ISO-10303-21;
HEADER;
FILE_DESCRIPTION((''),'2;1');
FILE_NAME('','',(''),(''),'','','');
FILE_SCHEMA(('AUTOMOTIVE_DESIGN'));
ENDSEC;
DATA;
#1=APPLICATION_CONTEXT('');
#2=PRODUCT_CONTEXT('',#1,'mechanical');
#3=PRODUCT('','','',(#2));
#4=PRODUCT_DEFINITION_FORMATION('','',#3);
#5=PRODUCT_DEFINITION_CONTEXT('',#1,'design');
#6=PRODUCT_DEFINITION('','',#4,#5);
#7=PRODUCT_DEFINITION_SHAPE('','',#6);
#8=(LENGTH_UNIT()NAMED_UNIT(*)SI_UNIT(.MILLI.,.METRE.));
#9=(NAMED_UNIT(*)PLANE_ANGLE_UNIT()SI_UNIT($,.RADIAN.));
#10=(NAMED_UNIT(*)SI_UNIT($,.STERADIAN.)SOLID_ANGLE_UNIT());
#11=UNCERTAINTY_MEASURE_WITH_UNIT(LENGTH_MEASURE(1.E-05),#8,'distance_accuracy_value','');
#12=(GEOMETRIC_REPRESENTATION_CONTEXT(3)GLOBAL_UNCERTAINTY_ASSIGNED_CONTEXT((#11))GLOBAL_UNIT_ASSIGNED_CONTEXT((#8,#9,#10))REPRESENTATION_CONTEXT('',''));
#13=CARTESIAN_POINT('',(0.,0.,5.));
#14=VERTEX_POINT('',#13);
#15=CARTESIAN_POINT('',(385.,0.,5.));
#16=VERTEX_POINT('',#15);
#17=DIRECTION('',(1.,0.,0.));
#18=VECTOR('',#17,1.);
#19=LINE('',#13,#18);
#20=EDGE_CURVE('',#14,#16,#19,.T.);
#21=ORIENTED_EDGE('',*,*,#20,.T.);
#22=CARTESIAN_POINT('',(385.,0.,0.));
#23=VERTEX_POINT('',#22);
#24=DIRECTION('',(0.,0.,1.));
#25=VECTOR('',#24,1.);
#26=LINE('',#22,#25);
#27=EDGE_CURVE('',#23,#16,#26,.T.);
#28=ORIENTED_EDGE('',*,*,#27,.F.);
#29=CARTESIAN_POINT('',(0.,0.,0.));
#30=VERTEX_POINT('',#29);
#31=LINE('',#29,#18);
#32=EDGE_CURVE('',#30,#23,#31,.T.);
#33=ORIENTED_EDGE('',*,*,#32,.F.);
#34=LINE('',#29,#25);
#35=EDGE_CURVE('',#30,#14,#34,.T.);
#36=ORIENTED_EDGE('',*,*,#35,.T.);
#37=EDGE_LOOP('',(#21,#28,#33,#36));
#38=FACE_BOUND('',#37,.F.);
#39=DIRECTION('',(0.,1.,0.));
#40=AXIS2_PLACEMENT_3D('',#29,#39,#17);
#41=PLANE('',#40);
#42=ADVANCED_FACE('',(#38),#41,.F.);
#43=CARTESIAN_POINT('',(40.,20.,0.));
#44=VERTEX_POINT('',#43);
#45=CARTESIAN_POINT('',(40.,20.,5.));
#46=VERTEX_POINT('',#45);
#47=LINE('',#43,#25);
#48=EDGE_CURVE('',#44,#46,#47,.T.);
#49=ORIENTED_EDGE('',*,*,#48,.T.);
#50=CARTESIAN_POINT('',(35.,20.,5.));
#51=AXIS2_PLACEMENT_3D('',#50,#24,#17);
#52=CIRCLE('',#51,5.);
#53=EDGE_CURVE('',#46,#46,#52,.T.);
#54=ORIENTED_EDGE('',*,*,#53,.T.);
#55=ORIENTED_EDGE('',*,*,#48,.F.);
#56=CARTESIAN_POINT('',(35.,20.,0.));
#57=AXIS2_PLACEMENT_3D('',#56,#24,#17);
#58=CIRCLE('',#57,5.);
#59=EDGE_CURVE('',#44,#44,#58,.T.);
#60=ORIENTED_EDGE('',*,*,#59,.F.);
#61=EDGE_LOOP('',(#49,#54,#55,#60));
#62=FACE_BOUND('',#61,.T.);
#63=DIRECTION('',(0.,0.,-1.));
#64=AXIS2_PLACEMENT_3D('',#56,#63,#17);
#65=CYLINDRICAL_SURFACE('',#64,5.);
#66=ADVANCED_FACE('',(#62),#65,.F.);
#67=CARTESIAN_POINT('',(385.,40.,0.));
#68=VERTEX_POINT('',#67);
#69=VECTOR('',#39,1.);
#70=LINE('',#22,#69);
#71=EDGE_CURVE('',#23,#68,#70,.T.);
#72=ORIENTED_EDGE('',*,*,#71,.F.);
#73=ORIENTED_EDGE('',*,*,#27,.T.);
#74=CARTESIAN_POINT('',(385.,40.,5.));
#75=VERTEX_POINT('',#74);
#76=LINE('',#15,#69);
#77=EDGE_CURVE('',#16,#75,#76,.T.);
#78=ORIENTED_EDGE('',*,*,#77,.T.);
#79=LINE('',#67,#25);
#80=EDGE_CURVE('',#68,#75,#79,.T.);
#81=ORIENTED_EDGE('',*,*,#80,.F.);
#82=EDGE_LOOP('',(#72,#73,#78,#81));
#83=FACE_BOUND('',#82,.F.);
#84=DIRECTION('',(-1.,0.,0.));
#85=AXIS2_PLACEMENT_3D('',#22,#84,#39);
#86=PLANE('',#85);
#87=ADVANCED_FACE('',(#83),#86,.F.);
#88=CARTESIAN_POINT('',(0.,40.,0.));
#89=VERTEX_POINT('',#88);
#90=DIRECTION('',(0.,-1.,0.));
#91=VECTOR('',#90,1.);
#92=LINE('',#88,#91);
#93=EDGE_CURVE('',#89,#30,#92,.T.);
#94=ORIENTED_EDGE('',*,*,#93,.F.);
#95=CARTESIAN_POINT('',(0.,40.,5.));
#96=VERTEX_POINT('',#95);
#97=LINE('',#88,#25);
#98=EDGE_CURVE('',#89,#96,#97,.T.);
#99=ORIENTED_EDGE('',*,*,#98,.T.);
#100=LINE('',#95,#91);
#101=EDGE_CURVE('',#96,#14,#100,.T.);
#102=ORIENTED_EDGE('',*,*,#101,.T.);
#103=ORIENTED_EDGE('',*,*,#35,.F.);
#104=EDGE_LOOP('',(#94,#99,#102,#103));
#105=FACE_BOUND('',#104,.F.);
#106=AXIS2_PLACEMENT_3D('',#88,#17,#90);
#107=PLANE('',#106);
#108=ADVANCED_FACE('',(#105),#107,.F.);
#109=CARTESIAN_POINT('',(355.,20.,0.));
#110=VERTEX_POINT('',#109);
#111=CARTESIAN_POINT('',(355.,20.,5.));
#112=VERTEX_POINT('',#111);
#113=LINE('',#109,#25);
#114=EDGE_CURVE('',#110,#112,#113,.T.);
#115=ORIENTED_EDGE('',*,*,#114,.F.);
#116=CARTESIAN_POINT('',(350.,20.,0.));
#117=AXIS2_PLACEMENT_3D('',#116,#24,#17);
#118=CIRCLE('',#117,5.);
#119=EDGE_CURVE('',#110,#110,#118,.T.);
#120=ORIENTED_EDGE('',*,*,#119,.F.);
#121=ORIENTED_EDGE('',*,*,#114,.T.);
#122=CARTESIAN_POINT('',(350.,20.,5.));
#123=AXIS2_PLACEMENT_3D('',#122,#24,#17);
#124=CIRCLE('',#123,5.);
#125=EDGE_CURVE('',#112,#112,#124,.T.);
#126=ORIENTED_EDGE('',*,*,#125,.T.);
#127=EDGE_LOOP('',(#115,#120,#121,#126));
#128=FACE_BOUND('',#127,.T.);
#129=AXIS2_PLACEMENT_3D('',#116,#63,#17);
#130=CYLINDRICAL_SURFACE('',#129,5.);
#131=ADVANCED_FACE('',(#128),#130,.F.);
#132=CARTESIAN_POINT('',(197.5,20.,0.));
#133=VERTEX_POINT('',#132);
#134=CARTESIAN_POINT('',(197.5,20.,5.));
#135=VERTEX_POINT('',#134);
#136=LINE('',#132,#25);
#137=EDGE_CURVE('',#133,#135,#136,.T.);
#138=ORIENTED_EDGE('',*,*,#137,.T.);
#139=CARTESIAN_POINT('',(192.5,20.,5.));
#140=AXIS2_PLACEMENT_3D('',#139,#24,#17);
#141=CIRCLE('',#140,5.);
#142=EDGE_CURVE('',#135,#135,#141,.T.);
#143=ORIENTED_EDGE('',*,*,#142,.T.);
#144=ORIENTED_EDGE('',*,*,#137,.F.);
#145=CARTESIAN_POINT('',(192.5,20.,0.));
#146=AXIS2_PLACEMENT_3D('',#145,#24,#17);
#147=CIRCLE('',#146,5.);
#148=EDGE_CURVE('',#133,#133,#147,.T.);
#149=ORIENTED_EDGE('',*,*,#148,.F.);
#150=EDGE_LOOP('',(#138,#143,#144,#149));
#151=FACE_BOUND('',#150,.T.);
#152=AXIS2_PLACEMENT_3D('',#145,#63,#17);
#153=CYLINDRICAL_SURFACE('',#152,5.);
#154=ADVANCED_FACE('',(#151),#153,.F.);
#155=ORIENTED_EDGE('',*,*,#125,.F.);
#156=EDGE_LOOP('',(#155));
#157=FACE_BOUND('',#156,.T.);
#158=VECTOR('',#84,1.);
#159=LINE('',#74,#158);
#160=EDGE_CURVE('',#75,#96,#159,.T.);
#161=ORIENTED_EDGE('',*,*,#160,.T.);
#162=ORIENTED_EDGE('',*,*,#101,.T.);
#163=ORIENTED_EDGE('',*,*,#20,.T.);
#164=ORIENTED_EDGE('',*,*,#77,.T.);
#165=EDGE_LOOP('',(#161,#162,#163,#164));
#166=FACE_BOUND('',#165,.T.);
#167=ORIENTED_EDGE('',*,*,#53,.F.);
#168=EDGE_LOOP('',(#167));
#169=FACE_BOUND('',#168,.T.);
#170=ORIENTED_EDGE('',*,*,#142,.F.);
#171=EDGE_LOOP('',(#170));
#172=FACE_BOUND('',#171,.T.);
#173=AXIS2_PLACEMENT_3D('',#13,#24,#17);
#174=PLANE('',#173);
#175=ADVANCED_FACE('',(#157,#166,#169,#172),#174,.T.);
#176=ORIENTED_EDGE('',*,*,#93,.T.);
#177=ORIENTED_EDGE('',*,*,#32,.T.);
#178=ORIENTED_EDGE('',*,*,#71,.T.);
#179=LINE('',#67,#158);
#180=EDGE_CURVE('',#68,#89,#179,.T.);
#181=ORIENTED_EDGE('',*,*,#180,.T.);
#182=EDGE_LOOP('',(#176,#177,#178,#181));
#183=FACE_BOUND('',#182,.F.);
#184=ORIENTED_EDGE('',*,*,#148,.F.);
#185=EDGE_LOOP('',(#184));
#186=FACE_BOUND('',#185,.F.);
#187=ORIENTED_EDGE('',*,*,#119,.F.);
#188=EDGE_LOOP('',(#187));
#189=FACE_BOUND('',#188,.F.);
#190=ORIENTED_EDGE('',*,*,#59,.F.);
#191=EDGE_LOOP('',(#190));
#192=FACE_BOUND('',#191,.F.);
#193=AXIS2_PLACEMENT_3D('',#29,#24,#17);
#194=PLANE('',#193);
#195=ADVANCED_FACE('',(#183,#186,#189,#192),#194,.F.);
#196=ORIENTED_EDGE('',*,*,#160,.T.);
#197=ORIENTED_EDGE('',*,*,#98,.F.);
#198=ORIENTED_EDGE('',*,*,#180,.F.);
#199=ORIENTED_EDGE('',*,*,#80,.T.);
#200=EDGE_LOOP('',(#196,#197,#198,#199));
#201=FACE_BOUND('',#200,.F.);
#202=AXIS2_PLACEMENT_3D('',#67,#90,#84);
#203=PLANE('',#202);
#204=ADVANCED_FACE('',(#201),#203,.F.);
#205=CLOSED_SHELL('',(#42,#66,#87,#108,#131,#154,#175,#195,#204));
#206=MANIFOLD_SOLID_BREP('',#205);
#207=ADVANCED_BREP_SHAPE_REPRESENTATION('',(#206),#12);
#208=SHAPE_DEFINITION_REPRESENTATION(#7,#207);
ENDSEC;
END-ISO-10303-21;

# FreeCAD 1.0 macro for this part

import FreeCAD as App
import Part
import Sketcher
from FreeCAD import Vector


def add_polygon(sketch, points):
    """Adds a closed chain of lines whose ends are joined by coincident constraints."""
    first, n = sketch.GeometryCount, len(points)
    for a, b in zip(points, points[1:] + points[:1]):
        sketch.addGeometry(Part.LineSegment(App.Vector(*a, 0), App.Vector(*b, 0)), False)
    for i in range(n):
        sketch.addConstraint(Sketcher.Constraint("Coincident", first + i, 2, first + (i + 1) % n, 1))

doc = App.newDocument("Part")
body = doc.addObject("PartDesign::Body", "Body")

# Sketch on XY plane
sketch1 = body.newObject("Sketcher::SketchObject", "Sketch")
sketch1.AttachmentSupport = (doc.getObject("XY_Plane"), [""])
sketch1.MapMode = "FlatFace"
add_polygon(sketch1, [(0, 40), (0, 0), (385, 0), (385, 40)])  # lines 0-3
sketch1.addGeometry(Part.Circle(Vector(35, 20, 0), Vector(0, 0, 1), 5), False)  # 4
sketch1.addGeometry(Part.Circle(Vector(192, 20, 0), Vector(0, 0, 1), 5), False)  # 5
sketch1.addGeometry(Part.Circle(Vector(350, 20, 0), Vector(0, 0, 1), 5), False)  # 6
sketch1.addConstraint([
    Sketcher.Constraint("Vertical", 0),
    Sketcher.Constraint("Horizontal", 1),
    Sketcher.Constraint("Vertical", 2),
    Sketcher.Constraint("Horizontal", 3),
    Sketcher.Constraint("Coincident", 0, 2, -1, 1),
    Sketcher.Constraint("Equal", 4, 5),
    Sketcher.Constraint("Equal", 5, 6),
    Sketcher.Constraint("Horizontal", 4, 3, 5, 3),
    Sketcher.Constraint("Horizontal", 5, 3, 6, 3),
    Sketcher.Constraint("Diameter", 4, 10.0),
    Sketcher.Constraint("DistanceX", 1, 1, 1, 2, 385.0),
    Sketcher.Constraint("DistanceY", 0, 2, 0, 1, 40.0),
    Sketcher.Constraint("DistanceX", -1, 1, 4, 3, 35.0),
    Sketcher.Constraint("DistanceX", 6, 3, 1, 2, 35.0),
    Sketcher.Constraint("DistanceY", -1, 1, 4, 3, 20.0),
    Sketcher.Constraint("DistanceX", -1, 1, 5, 3, 192.5),
])
pad1 = body.newObject("PartDesign::Pad", "Pad")
pad1.Profile = sketch1
pad1.Length = 5

doc.recompute()
